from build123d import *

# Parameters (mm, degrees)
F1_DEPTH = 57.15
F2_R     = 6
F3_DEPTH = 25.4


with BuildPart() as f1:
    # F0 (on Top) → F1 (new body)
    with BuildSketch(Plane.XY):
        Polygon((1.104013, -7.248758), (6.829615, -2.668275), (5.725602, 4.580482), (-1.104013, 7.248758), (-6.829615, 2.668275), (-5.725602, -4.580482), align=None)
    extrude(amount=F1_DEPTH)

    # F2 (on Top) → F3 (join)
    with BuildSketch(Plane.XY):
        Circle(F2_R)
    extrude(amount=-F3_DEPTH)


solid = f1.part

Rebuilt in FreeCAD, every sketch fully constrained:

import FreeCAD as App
import Part
import Sketcher

V = App.Vector
Q = App.Units.Quantity


def add_polygon(sketch, points):
    """Adds a closed chain of lines whose ends are joined by coincident constraints."""
    first, n = sketch.GeometryCount, len(points)
    for a, b in zip(points, points[1:] + points[:1]):
        sketch.addGeometry(Part.LineSegment(App.Vector(*a, 0), App.Vector(*b, 0)), False)
    for i in range(n):
        sketch.addConstraint(Sketcher.Constraint("Coincident", first + i, 2, first + (i + 1) % n, 1))

doc = App.newDocument("Part")
params = doc.addObject("Spreadsheet::Sheet", "Params")
for row, (alias, value) in enumerate([
    ("pad1_length", "2.25 in"),
    ("pad2_length", "1 in"),
], start=1):
    params.set(f"A{row}", alias)
    params.set(f"B{row}", "=" + value)
    params.setAlias(f"B{row}", alias)

body = doc.addObject("PartDesign::Body", "Body")

# Sketch on XY plane
sketch1 = body.newObject("Sketcher::SketchObject", "Sketch")
sketch1.AttachmentSupport = (doc.getObject("XY_Plane"), [""])
sketch1.MapMode = "FlatFace"
add_polygon(sketch1, [(1.104013, -7.248758), (6.829615, -2.668275), (5.725602, 4.580482), (-1.104013, 7.248758), (-6.829615, 2.668275), (-5.725602, -4.580482)])  # lines 0-5
sketch1.addConstraint([
    Sketcher.Constraint("Symmetric", 0, 2, 3, 2, -1, 1),
    Sketcher.Constraint("Symmetric", 1, 2, 4, 2, -1, 1),
    Sketcher.Constraint("Symmetric", 2, 2, 5, 2, -1, 1),
    Sketcher.Constraint("Equal", 0, 1),
    Sketcher.Constraint("Equal", 1, 2),
    Sketcher.Constraint("DistanceX", 3, 2, 1, 2, Q("0.4942999 in")),
    Sketcher.Constraint("Distance", 0, Q("7.332349 mm")),
    Sketcher.Constraint("DistanceX", 2, 2, 0, 2, Q("7.933628 mm")),
    Sketcher.Constraint("DistanceX", 3, 2, 0, 2, Q("13.65923 mm")),
])
pad1 = body.newObject("PartDesign::Pad", "Pad")
pad1.Profile = sketch1
pad1.setExpression("Length", "Params.pad1_length")

# Sketch on XY plane
sketch2 = body.newObject("Sketcher::SketchObject", "Sketch001")
sketch2.AttachmentSupport = (doc.getObject("XY_Plane"), [""])
sketch2.MapMode = "FlatFace"
sketch2.addGeometry(Part.Circle(V(0, 0, 0), V(0, 0, 1), 6), False)
sketch2.addConstraint([
    Sketcher.Constraint("Coincident", 0, 3, -1, 1),
    Sketcher.Constraint("Diameter", 0, Q("12 mm")),
])
pad2 = body.newObject("PartDesign::Pad", "Pad001")
pad2.Profile = sketch2
pad2.setExpression("Length", "Params.pad2_length")
pad2.Reversed = True

doc.recompute()
